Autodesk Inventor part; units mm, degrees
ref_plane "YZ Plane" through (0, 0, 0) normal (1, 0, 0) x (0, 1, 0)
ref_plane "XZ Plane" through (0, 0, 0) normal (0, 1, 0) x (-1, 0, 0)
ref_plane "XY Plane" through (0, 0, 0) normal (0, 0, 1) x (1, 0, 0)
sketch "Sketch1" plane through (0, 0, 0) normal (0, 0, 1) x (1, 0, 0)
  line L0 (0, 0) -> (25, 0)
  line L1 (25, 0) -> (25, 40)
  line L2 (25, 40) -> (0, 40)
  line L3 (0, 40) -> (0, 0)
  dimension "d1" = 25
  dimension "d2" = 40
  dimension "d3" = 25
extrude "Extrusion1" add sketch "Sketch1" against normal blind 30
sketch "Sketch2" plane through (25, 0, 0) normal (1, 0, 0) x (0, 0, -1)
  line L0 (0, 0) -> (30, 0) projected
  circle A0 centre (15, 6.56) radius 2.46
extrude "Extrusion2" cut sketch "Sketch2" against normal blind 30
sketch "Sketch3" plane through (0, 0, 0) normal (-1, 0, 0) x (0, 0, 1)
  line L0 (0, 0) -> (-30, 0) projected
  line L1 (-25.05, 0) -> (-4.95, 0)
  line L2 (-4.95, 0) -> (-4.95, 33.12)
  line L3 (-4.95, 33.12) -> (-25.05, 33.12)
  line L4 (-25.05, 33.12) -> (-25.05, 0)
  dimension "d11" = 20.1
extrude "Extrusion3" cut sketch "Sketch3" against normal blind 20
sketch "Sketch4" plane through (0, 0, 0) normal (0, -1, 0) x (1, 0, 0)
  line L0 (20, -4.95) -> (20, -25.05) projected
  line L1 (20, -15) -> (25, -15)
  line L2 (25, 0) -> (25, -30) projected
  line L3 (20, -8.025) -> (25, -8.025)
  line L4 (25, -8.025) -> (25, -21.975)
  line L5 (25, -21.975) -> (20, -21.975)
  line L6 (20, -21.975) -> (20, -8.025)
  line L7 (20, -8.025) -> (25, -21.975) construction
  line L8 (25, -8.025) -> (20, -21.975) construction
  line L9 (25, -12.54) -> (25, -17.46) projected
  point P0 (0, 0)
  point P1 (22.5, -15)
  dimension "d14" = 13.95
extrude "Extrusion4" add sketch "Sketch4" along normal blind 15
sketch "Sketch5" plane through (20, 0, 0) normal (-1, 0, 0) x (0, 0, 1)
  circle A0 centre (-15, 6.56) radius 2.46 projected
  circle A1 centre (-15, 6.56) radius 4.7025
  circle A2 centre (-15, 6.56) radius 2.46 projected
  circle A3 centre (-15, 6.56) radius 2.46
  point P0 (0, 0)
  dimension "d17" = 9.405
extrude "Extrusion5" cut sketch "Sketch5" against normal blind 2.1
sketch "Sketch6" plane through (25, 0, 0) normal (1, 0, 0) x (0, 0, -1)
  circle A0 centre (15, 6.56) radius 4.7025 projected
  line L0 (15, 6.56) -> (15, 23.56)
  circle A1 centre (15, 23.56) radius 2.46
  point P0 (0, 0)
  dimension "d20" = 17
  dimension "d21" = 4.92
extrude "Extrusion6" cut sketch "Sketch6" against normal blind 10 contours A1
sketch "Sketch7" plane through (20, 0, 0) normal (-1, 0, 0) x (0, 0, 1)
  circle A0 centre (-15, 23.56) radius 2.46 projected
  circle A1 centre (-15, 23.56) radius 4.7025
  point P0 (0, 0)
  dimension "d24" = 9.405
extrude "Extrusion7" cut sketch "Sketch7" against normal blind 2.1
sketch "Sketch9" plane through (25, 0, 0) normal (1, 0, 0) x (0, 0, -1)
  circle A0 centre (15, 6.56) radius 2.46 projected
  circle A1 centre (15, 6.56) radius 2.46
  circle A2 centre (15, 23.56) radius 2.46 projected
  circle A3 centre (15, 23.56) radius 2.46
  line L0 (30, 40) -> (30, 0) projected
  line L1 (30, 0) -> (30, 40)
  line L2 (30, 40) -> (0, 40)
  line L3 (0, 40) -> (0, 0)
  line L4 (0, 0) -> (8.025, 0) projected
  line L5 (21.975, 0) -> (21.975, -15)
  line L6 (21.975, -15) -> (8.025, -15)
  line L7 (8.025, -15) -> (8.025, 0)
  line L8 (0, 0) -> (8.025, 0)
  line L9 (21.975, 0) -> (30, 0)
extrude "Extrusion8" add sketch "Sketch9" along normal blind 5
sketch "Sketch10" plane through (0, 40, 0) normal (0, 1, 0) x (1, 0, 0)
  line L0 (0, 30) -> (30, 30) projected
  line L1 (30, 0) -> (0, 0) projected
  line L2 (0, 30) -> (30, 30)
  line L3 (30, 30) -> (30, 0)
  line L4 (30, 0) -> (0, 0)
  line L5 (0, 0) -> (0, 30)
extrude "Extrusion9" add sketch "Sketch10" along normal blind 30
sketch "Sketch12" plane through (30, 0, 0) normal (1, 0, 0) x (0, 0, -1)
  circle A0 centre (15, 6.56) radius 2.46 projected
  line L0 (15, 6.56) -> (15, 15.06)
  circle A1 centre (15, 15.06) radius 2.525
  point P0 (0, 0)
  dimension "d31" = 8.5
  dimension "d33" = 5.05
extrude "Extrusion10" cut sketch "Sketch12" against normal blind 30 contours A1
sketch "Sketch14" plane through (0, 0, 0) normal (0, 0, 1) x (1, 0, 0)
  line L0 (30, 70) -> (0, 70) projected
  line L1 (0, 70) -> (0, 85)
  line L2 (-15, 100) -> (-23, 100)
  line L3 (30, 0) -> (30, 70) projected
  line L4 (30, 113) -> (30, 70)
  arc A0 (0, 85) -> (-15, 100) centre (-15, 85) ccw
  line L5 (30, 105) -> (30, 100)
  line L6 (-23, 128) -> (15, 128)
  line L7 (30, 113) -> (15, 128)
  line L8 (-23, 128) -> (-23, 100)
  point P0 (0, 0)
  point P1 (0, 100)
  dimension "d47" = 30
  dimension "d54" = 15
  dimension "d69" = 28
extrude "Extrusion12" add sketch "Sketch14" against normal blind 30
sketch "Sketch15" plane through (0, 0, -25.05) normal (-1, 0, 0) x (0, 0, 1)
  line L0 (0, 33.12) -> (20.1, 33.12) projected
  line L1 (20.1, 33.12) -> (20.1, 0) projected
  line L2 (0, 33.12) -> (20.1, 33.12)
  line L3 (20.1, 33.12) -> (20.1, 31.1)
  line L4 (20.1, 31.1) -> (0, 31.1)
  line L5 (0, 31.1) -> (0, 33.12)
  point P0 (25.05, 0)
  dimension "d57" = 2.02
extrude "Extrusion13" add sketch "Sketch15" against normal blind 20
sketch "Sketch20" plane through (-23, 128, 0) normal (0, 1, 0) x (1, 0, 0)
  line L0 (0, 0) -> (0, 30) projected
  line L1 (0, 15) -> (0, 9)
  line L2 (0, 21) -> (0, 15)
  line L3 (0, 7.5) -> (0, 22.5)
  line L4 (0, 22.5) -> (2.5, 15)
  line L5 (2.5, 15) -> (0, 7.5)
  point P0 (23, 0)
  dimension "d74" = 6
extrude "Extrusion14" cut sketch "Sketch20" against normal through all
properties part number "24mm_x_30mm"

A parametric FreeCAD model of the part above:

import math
import FreeCAD as App
import Part
import Sketcher
from FreeCAD import Vector

doc = App.newDocument("Part")
params = doc.addObject("Spreadsheet::Sheet", "Params")
for row, (alias, value) in enumerate([
    ("sketch1_width", "25 mm"),
    ("sketch1_height", "40 mm"),
    ("pad1_length", "30 mm"),
    ("sketch2_diameter", "4.92 mm"),
    ("pocket1_length", "30 mm"),
    ("sketch3_height", "20.1 mm"),
    ("sketch3_width", "33.12 mm"),
    ("pocket2_length", "20 mm"),
    ("sketch4_height", "13.95 mm"),
    ("sketch4_width", "5 mm"),
    ("pad2_length", "15 mm"),
    ("sketch5_diameter", "4.92 mm"),
    ("pocket3_length", "2.1 mm"),
    ("sketch6_diameter", "4.92 mm"),
    ("pocket4_length", "10 mm"),
    ("sketch7_diameter", "4.92 mm"),
    ("pocket5_length", "2.1 mm"),
    ("sketch8_diameter", "4.92 mm"),
    ("sketch8_width", "40 mm"),
    ("sketch8_width2", "15 mm"),
    ("sketch8_height", "30 mm"),
    ("sketch8_height2", "13.95 mm"),
    ("pad3_length", "5 mm"),
    ("sketch9_width", "30 mm"),
    ("pad4_length", "30 mm"),
    ("sketch10_diameter", "5.05 mm"),
    ("pocket6_length", "30 mm"),
    ("sketch11_radius", "15 mm"),
    ("sketch11_width", "30 mm"),
    ("sketch11_height", "28 mm"),
    ("sketch11_height2", "15 mm"),
    ("sketch11_width2", "38 mm"),
    ("pad5_length", "30 mm"),
    ("sketch12_width", "2.02 mm"),
    ("sketch12_height", "20.1 mm"),
    ("pad6_length", "20 mm"),
    ("sketch13_height", "15 mm"),
], start=1):
    params.set(f"A{row}", alias)
    params.set(f"B{row}", "=" + value)
    params.setAlias(f"B{row}", alias)

body = doc.addObject("PartDesign::Body", "Body")

# Sketch on XY plane
sketch1 = body.newObject("Sketcher::SketchObject", "Sketch")
sketch1.AttachmentSupport = (doc.getObject("XY_Plane"), [""])
sketch1.MapMode = "FlatFace"
sketch1.addGeometry(Part.LineSegment(Vector(0, 40, 0), Vector(0, 0, 0)), False)
sketch1.addGeometry(Part.LineSegment(Vector(0, 0, 0), Vector(25, 0, 0)), False)
sketch1.addGeometry(Part.LineSegment(Vector(25, 0, 0), Vector(25, 40, 0)), False)
sketch1.addGeometry(Part.LineSegment(Vector(25, 40, 0), Vector(0, 40, 0)), False)
sketch1.addConstraint(Sketcher.Constraint("Coincident", 0, 2, 1, 1))
sketch1.addConstraint(Sketcher.Constraint("Coincident", 1, 2, 2, 1))
sketch1.addConstraint(Sketcher.Constraint("Coincident", 2, 2, 3, 1))
sketch1.addConstraint(Sketcher.Constraint("Coincident", 3, 2, 0, 1))
sketch1.addConstraint(Sketcher.Constraint("Vertical", 0))
sketch1.addConstraint(Sketcher.Constraint("Horizontal", 1))
sketch1.addConstraint(Sketcher.Constraint("Vertical", 2))
sketch1.addConstraint(Sketcher.Constraint("Horizontal", 3))
sketch1.addConstraint(Sketcher.Constraint("Coincident", 0, 2, -1, 1))
sketch1.addConstraint(Sketcher.Constraint("DistanceX", 1, 1, 1, 2, 25.0))
sketch1.addConstraint(Sketcher.Constraint("DistanceY", 0, 2, 0, 1, 40.0))
sketch1.setExpression("Constraints[9]", "Params.sketch1_width")
sketch1.setExpression("Constraints[10]", "Params.sketch1_height")
pad1 = body.newObject("PartDesign::Pad", "Pad")
pad1.Profile = sketch1
pad1.setExpression("Length", "Params.pad1_length")
pad1.Reversed = True

# Sketch on YZ plane
sketch2 = body.newObject("Sketcher::SketchObject", "Sketch001")
sketch2.AttachmentSupport = (doc.getObject("YZ_Plane"), [""])
sketch2.MapMode = "FlatFace"
sketch2.AttachmentOffset = App.Placement(Vector(0, 0, 25), App.Rotation())
sketch2.addGeometry(Part.Circle(Vector(6.56, -15, 0), Vector(0, 0, 1), 2.46), False)
sketch2.addConstraint(Sketcher.Constraint("Diameter", 0, 4.92))
sketch2.addConstraint(Sketcher.Constraint("DistanceY", 0, 3, -1, 1, 15.0))
sketch2.addConstraint(Sketcher.Constraint("DistanceX", -1, 1, 0, 3, 6.56))
sketch2.setExpression("Constraints[0]", "Params.sketch2_diameter")
pocket1 = body.newObject("PartDesign::Pocket", "Pocket")
pocket1.Profile = sketch2
pocket1.setExpression("Length", "Params.pocket1_length")

# Sketch on YZ plane
sketch3 = body.newObject("Sketcher::SketchObject", "Sketch002")
sketch3.AttachmentSupport = (doc.getObject("YZ_Plane"), [""])
sketch3.MapMode = "FlatFace"
sketch3.addGeometry(Part.LineSegment(Vector(0, -25.05, 0), Vector(0, -4.95, 0)), False)
sketch3.addGeometry(Part.LineSegment(Vector(0, -4.95, 0), Vector(33.12, -4.95, 0)), False)
sketch3.addGeometry(Part.LineSegment(Vector(33.12, -4.95, 0), Vector(33.12, -25.05, 0)), False)
sketch3.addGeometry(Part.LineSegment(Vector(33.12, -25.05, 0), Vector(0, -25.05, 0)), False)
sketch3.addConstraint(Sketcher.Constraint("Coincident", 0, 2, 1, 1))
sketch3.addConstraint(Sketcher.Constraint("Coincident", 1, 2, 2, 1))
sketch3.addConstraint(Sketcher.Constraint("Coincident", 2, 2, 3, 1))
sketch3.addConstraint(Sketcher.Constraint("Coincident", 3, 2, 0, 1))
sketch3.addConstraint(Sketcher.Constraint("Vertical", 0))
sketch3.addConstraint(Sketcher.Constraint("Horizontal", 1))
sketch3.addConstraint(Sketcher.Constraint("Vertical", 2))
sketch3.addConstraint(Sketcher.Constraint("Horizontal", 3))
sketch3.addConstraint(Sketcher.Constraint("PointOnObject", 0, 2, -2))
sketch3.addConstraint(Sketcher.Constraint("DistanceY", 0, 1, 0, 2, 20.1))
sketch3.addConstraint(Sketcher.Constraint("DistanceX", 1, 1, 1, 2, 33.12))
sketch3.addConstraint(Sketcher.Constraint("DistanceY", 0, 2, -1, 1, 4.95))
sketch3.setExpression("Constraints[9]", "Params.sketch3_height")
sketch3.setExpression("Constraints[10]", "Params.sketch3_width")
pocket2 = body.newObject("PartDesign::Pocket", "Pocket001")
pocket2.Profile = sketch3
pocket2.setExpression("Length", "Params.pocket2_length")
pocket2.Reversed = True

# Sketch on XZ plane
sketch4 = body.newObject("Sketcher::SketchObject", "Sketch003")
sketch4.AttachmentSupport = (doc.getObject("XZ_Plane"), [""])
sketch4.MapMode = "FlatFace"
sketch4.addGeometry(Part.LineSegment(Vector(25, -8.025, 0), Vector(20, -8.025, 0)), False)
sketch4.addGeometry(Part.LineSegment(Vector(20, -8.025, 0), Vector(20, -21.975, 0)), False)
sketch4.addGeometry(Part.LineSegment(Vector(20, -21.975, 0), Vector(25, -21.975, 0)), False)
sketch4.addGeometry(Part.LineSegment(Vector(25, -21.975, 0), Vector(25, -8.025, 0)), False)
sketch4.addConstraint(Sketcher.Constraint("Coincident", 0, 2, 1, 1))
sketch4.addConstraint(Sketcher.Constraint("Coincident", 1, 2, 2, 1))
sketch4.addConstraint(Sketcher.Constraint("Coincident", 2, 2, 3, 1))
sketch4.addConstraint(Sketcher.Constraint("Coincident", 3, 2, 0, 1))
sketch4.addConstraint(Sketcher.Constraint("Horizontal", 0))
sketch4.addConstraint(Sketcher.Constraint("Vertical", 1))
sketch4.addConstraint(Sketcher.Constraint("Horizontal", 2))
sketch4.addConstraint(Sketcher.Constraint("Vertical", 3))
sketch4.addConstraint(Sketcher.Constraint("DistanceY", 1, 2, 1, 1, 13.95))
sketch4.addConstraint(Sketcher.Constraint("DistanceX", 0, 2, 0, 1, 5.0))
sketch4.addConstraint(Sketcher.Constraint("DistanceX", -1, 1, 0, 2, 20.0))
sketch4.addConstraint(Sketcher.Constraint("DistanceY", 0, 2, -1, 1, 8.025))
sketch4.setExpression("Constraints[8]", "Params.sketch4_height")
sketch4.setExpression("Constraints[9]", "Params.sketch4_width")
pad2 = body.newObject("PartDesign::Pad", "Pad001")
pad2.Profile = sketch4
pad2.setExpression("Length", "Params.pad2_length")

# Sketch on YZ plane
sketch5 = body.newObject("Sketcher::SketchObject", "Sketch004")
sketch5.AttachmentSupport = (doc.getObject("YZ_Plane"), [""])
sketch5.MapMode = "FlatFace"
sketch5.AttachmentOffset = App.Placement(Vector(0, 0, 20), App.Rotation())
sketch5.addGeometry(Part.Circle(Vector(6.56, -15, 0), Vector(0, 0, 1), 4.7025), False)
sketch5.addGeometry(Part.Circle(Vector(6.56, -15, 0), Vector(0, 0, 1), 2.46), False)
sketch5.addConstraint(Sketcher.Constraint("Coincident", 1, 3, 0, 3))
sketch5.addConstraint(Sketcher.Constraint("Diameter", 0, 9.405))
sketch5.addConstraint(Sketcher.Constraint("Diameter", 1, 4.92))
sketch5.addConstraint(Sketcher.Constraint("DistanceY", 0, 3, -1, 1, 15.0))
sketch5.addConstraint(Sketcher.Constraint("DistanceX", -1, 1, 0, 3, 6.56))
sketch5.setExpression("Constraints[2]", "Params.sketch5_diameter")
pocket3 = body.newObject("PartDesign::Pocket", "Pocket002")
pocket3.Profile = sketch5
pocket3.setExpression("Length", "Params.pocket3_length")
pocket3.Reversed = True

# Sketch on YZ plane
sketch6 = body.newObject("Sketcher::SketchObject", "Sketch005")
sketch6.AttachmentSupport = (doc.getObject("YZ_Plane"), [""])
sketch6.MapMode = "FlatFace"
sketch6.AttachmentOffset = App.Placement(Vector(0, 0, 25), App.Rotation())
sketch6.addGeometry(Part.Circle(Vector(23.56, -15, 0), Vector(0, 0, 1), 2.46), False)
sketch6.addConstraint(Sketcher.Constraint("Diameter", 0, 4.92))
sketch6.addConstraint(Sketcher.Constraint("DistanceY", 0, 3, -1, 1, 15.0))
sketch6.addConstraint(Sketcher.Constraint("DistanceX", -1, 1, 0, 3, 23.56))
sketch6.setExpression("Constraints[0]", "Params.sketch6_diameter")
pocket4 = body.newObject("PartDesign::Pocket", "Pocket003")
pocket4.Profile = sketch6
pocket4.setExpression("Length", "Params.pocket4_length")

# Sketch on YZ plane
sketch7 = body.newObject("Sketcher::SketchObject", "Sketch006")
sketch7.AttachmentSupport = (doc.getObject("YZ_Plane"), [""])
sketch7.MapMode = "FlatFace"
sketch7.AttachmentOffset = App.Placement(Vector(0, 0, 20), App.Rotation())
sketch7.addGeometry(Part.Circle(Vector(23.56, -15, 0), Vector(0, 0, 1), 4.7025), False)
sketch7.addGeometry(Part.Circle(Vector(23.56, -15, 0), Vector(0, 0, 1), 2.46), False)
sketch7.addConstraint(Sketcher.Constraint("Coincident", 1, 3, 0, 3))
sketch7.addConstraint(Sketcher.Constraint("Diameter", 0, 9.405))
sketch7.addConstraint(Sketcher.Constraint("Diameter", 1, 4.92))
sketch7.addConstraint(Sketcher.Constraint("DistanceY", 0, 3, -1, 1, 15.0))
sketch7.addConstraint(Sketcher.Constraint("DistanceX", -1, 1, 0, 3, 23.56))
sketch7.setExpression("Constraints[2]", "Params.sketch7_diameter")
pocket5 = body.newObject("PartDesign::Pocket", "Pocket004")
pocket5.Profile = sketch7
pocket5.setExpression("Length", "Params.pocket5_length")
pocket5.Reversed = True

# Sketch on YZ plane
sketch8 = body.newObject("Sketcher::SketchObject", "Sketch007")
sketch8.AttachmentSupport = (doc.getObject("YZ_Plane"), [""])
sketch8.MapMode = "FlatFace"
sketch8.AttachmentOffset = App.Placement(Vector(0, 0, 25), App.Rotation())
sketch8.addGeometry(Part.LineSegment(Vector(0, -30, 0), Vector(40, -30, 0)), False)
sketch8.addGeometry(Part.LineSegment(Vector(40, -30, 0), Vector(40, 0, 0)), False)
sketch8.addGeometry(Part.LineSegment(Vector(40, 0, 0), Vector(0, 0, 0)), False)
sketch8.addGeometry(Part.LineSegment(Vector(0, 0, 0), Vector(0, -8.025, 0)), False)
sketch8.addGeometry(Part.LineSegment(Vector(0, -8.025, 0), Vector(-15, -8.025, 0)), False)
sketch8.addGeometry(Part.LineSegment(Vector(-15, -8.025, 0), Vector(-15, -21.975, 0)), False)
sketch8.addGeometry(Part.LineSegment(Vector(-15, -21.975, 0), Vector(0, -21.975, 0)), False)
sketch8.addGeometry(Part.LineSegment(Vector(0, -21.975, 0), Vector(0, -30, 0)), False)
sketch8.addGeometry(Part.Circle(Vector(6.56, -15, 0), Vector(0, 0, 1), 2.46), False)
sketch8.addGeometry(Part.Circle(Vector(23.56, -15, 0), Vector(0, 0, 1), 2.46), False)
sketch8.addConstraint(Sketcher.Constraint("Coincident", 0, 2, 1, 1))
sketch8.addConstraint(Sketcher.Constraint("Coincident", 1, 2, 2, 1))
sketch8.addConstraint(Sketcher.Constraint("Coincident", 2, 2, 3, 1))
sketch8.addConstraint(Sketcher.Constraint("Coincident", 3, 2, 4, 1))
sketch8.addConstraint(Sketcher.Constraint("Coincident", 4, 2, 5, 1))
sketch8.addConstraint(Sketcher.Constraint("Coincident", 5, 2, 6, 1))
sketch8.addConstraint(Sketcher.Constraint("Coincident", 6, 2, 7, 1))
sketch8.addConstraint(Sketcher.Constraint("Coincident", 7, 2, 0, 1))
sketch8.addConstraint(Sketcher.Constraint("Horizontal", 0))
sketch8.addConstraint(Sketcher.Constraint("Vertical", 1))
sketch8.addConstraint(Sketcher.Constraint("Horizontal", 2))
sketch8.addConstraint(Sketcher.Constraint("Vertical", 3))
sketch8.addConstraint(Sketcher.Constraint("Horizontal", 4))
sketch8.addConstraint(Sketcher.Constraint("Vertical", 5))
sketch8.addConstraint(Sketcher.Constraint("Horizontal", 6))
sketch8.addConstraint(Sketcher.Constraint("Vertical", 7))
sketch8.addConstraint(Sketcher.Constraint("Coincident", 2, 2, -1, 1))
sketch8.addConstraint(Sketcher.Constraint("Equal", 8, 9))
sketch8.addConstraint(Sketcher.Constraint("PointOnObject", 6, 2, -2))
sketch8.addConstraint(Sketcher.Constraint("Horizontal", 8, 3, 9, 3))
sketch8.addConstraint(Sketcher.Constraint("Equal", 3, 7))
sketch8.addConstraint(Sketcher.Constraint("Diameter", 8, 4.92))
sketch8.addConstraint(Sketcher.Constraint("DistanceX", 0, 1, 0, 2, 40.0))
sketch8.addConstraint(Sketcher.Constraint("DistanceX", 4, 2, 4, 1, 15.0))
sketch8.addConstraint(Sketcher.Constraint("DistanceY", 1, 1, 1, 2, 30.0))
sketch8.addConstraint(Sketcher.Constraint("DistanceY", 8, 3, -1, 1, 15.0))
sketch8.addConstraint(Sketcher.Constraint("DistanceX", 8, 3, 9, 3, 17.0))
sketch8.addConstraint(Sketcher.Constraint("DistanceY", 5, 2, 5, 1, 13.95))
sketch8.addConstraint(Sketcher.Constraint("DistanceX", -1, 1, 8, 3, 6.56))
sketch8.setExpression("Constraints[21]", "Params.sketch8_diameter")
sketch8.setExpression("Constraints[22]", "Params.sketch8_width")
sketch8.setExpression("Constraints[23]", "Params.sketch8_width2")
sketch8.setExpression("Constraints[24]", "Params.sketch8_height")
sketch8.setExpression("Constraints[27]", "Params.sketch8_height2")
pad3 = body.newObject("PartDesign::Pad", "Pad002")
pad3.Profile = sketch8
pad3.setExpression("Length", "Params.pad3_length")

# Sketch on XZ plane
sketch9 = body.newObject("Sketcher::SketchObject", "Sketch008")
sketch9.AttachmentSupport = (doc.getObject("XZ_Plane"), [""])
sketch9.MapMode = "FlatFace"
sketch9.AttachmentOffset = App.Placement(Vector(0, 0, -40), App.Rotation())
sketch9.addGeometry(Part.LineSegment(Vector(30, -30, 0), Vector(0, -30, 0)), False)
sketch9.addGeometry(Part.LineSegment(Vector(0, -30, 0), Vector(0, 0, 0)), False)
sketch9.addGeometry(Part.LineSegment(Vector(0, 0, 0), Vector(30, 0, 0)), False)
sketch9.addGeometry(Part.LineSegment(Vector(30, 0, 0), Vector(30, -30, 0)), False)
sketch9.addConstraint(Sketcher.Constraint("Coincident", 0, 2, 1, 1))
sketch9.addConstraint(Sketcher.Constraint("Coincident", 1, 2, 2, 1))
sketch9.addConstraint(Sketcher.Constraint("Coincident", 2, 2, 3, 1))
sketch9.addConstraint(Sketcher.Constraint("Coincident", 3, 2, 0, 1))
sketch9.addConstraint(Sketcher.Constraint("Horizontal", 0))
sketch9.addConstraint(Sketcher.Constraint("Vertical", 1))
sketch9.addConstraint(Sketcher.Constraint("Horizontal", 2))
sketch9.addConstraint(Sketcher.Constraint("Vertical", 3))
sketch9.addConstraint(Sketcher.Constraint("Coincident", 1, 2, -1, 1))
sketch9.addConstraint(Sketcher.Constraint("Equal", 2, 1))
sketch9.addConstraint(Sketcher.Constraint("DistanceX", 0, 2, 0, 1, 30.0))
sketch9.setExpression("Constraints[10]", "Params.sketch9_width")
pad4 = body.newObject("PartDesign::Pad", "Pad003")
pad4.Profile = sketch9
pad4.setExpression("Length", "Params.pad4_length")
pad4.Reversed = True

# Sketch on YZ plane
sketch10 = body.newObject("Sketcher::SketchObject", "Sketch009")
sketch10.AttachmentSupport = (doc.getObject("YZ_Plane"), [""])
sketch10.MapMode = "FlatFace"
sketch10.AttachmentOffset = App.Placement(Vector(0, 0, 30), App.Rotation())
sketch10.addGeometry(Part.Circle(Vector(15.06, -15, 0), Vector(0, 0, 1), 2.525), False)
sketch10.addConstraint(Sketcher.Constraint("Diameter", 0, 5.05))
sketch10.addConstraint(Sketcher.Constraint("DistanceY", 0, 3, -1, 1, 15.0))
sketch10.addConstraint(Sketcher.Constraint("DistanceX", -1, 1, 0, 3, 15.06))
sketch10.setExpression("Constraints[0]", "Params.sketch10_diameter")
pocket6 = body.newObject("PartDesign::Pocket", "Pocket005")
pocket6.Profile = sketch10
pocket6.setExpression("Length", "Params.pocket6_length")

# Sketch on XY plane
sketch11 = body.newObject("Sketcher::SketchObject", "Sketch010")
sketch11.AttachmentSupport = (doc.getObject("XY_Plane"), [""])
sketch11.MapMode = "FlatFace"
sketch11.addGeometry(Part.LineSegment(Vector(0, 70, 0), Vector(30, 70, 0)), False)
sketch11.addGeometry(Part.LineSegment(Vector(30, 70, 0), Vector(30, 113, 0)), False)
sketch11.addGeometry(Part.LineSegment(Vector(30, 113, 0), Vector(15, 128, 0)), False)
sketch11.addGeometry(Part.LineSegment(Vector(15, 128, 0), Vector(-23, 128, 0)), False)
sketch11.addGeometry(Part.LineSegment(Vector(-23, 128, 0), Vector(-23, 100, 0)), False)
sketch11.addGeometry(Part.LineSegment(Vector(-23, 100, 0), Vector(-15, 100, 0)), False)
sketch11.addGeometry(Part.ArcOfCircle(Part.Circle(Vector(-15, 85, 0), Vector(0, 0, 1), 15), math.radians(0), math.radians(90)), False)
sketch11.addGeometry(Part.LineSegment(Vector(0, 85, 0), Vector(0, 70, 0)), False)
sketch11.addConstraint(Sketcher.Constraint("Coincident", 0, 2, 1, 1))
sketch11.addConstraint(Sketcher.Constraint("Coincident", 1, 2, 2, 1))
sketch11.addConstraint(Sketcher.Constraint("Coincident", 2, 2, 3, 1))
sketch11.addConstraint(Sketcher.Constraint("Coincident", 3, 2, 4, 1))
sketch11.addConstraint(Sketcher.Constraint("Coincident", 4, 2, 5, 1))
sketch11.addConstraint(Sketcher.Constraint("Tangent", 5, 2, 6, 2))
sketch11.addConstraint(Sketcher.Constraint("Tangent", 6, 1, 7, 1))
sketch11.addConstraint(Sketcher.Constraint("Coincident", 7, 2, 0, 1))
sketch11.addConstraint(Sketcher.Constraint("Horizontal", 0))
sketch11.addConstraint(Sketcher.Constraint("Vertical", 1))
sketch11.addConstraint(Sketcher.Constraint("Horizontal", 3))
sketch11.addConstraint(Sketcher.Constraint("Vertical", 4))
sketch11.addConstraint(Sketcher.Constraint("Horizontal", 5))
sketch11.addConstraint(Sketcher.Constraint("Vertical", 7))
sketch11.addConstraint(Sketcher.Constraint("PointOnObject", 6, 1, -2))
sketch11.addConstraint(Sketcher.Constraint("Radius", 6, 15.0))
sketch11.addConstraint(Sketcher.Constraint("DistanceX", 0, 1, 0, 2, 30.0))
sketch11.addConstraint(Sketcher.Constraint("DistanceY", 4, 2, 4, 1, 28.0))
sketch11.addConstraint(Sketcher.Constraint("DistanceY", 7, 2, 7, 1, 15.0))
sketch11.addConstraint(Sketcher.Constraint("DistanceX", -1, 1, 2, 2, 15.0))
sketch11.addConstraint(Sketcher.Constraint("DistanceY", 6, 3, 1, 2, 28.0))
sketch11.addConstraint(Sketcher.Constraint("DistanceX", 3, 2, 3, 1, 38.0))
sketch11.addConstraint(Sketcher.Constraint("DistanceY", -1, 1, 6, 3, 85.0))
sketch11.setExpression("Constraints[15]", "Params.sketch11_radius")
sketch11.setExpression("Constraints[16]", "Params.sketch11_width")
sketch11.setExpression("Constraints[17]", "Params.sketch11_height")
sketch11.setExpression("Constraints[18]", "Params.sketch11_height2")
sketch11.setExpression("Constraints[21]", "Params.sketch11_width2")
pad5 = body.newObject("PartDesign::Pad", "Pad004")
pad5.Profile = sketch11
pad5.setExpression("Length", "Params.pad5_length")
pad5.Reversed = True

# Sketch on YZ plane
sketch12 = body.newObject("Sketcher::SketchObject", "Sketch011")
sketch12.AttachmentSupport = (doc.getObject("YZ_Plane"), [""])
sketch12.MapMode = "FlatFace"
sketch12.addGeometry(Part.LineSegment(Vector(33.12, -4.95, 0), Vector(33.12, -25.05, 0)), False)
sketch12.addGeometry(Part.LineSegment(Vector(33.12, -25.05, 0), Vector(31.1, -25.05, 0)), False)
sketch12.addGeometry(Part.LineSegment(Vector(31.1, -25.05, 0), Vector(31.1, -4.95, 0)), False)
sketch12.addGeometry(Part.LineSegment(Vector(31.1, -4.95, 0), Vector(33.12, -4.95, 0)), False)
sketch12.addConstraint(Sketcher.Constraint("Coincident", 0, 2, 1, 1))
sketch12.addConstraint(Sketcher.Constraint("Coincident", 1, 2, 2, 1))
sketch12.addConstraint(Sketcher.Constraint("Coincident", 2, 2, 3, 1))
sketch12.addConstraint(Sketcher.Constraint("Coincident", 3, 2, 0, 1))
sketch12.addConstraint(Sketcher.Constraint("Vertical", 0))
sketch12.addConstraint(Sketcher.Constraint("Horizontal", 1))
sketch12.addConstraint(Sketcher.Constraint("Vertical", 2))
sketch12.addConstraint(Sketcher.Constraint("Horizontal", 3))
sketch12.addConstraint(Sketcher.Constraint("DistanceX", 1, 2, 1, 1, 2.02))
sketch12.addConstraint(Sketcher.Constraint("DistanceY", 0, 2, 0, 1, 20.1))
sketch12.addConstraint(Sketcher.Constraint("DistanceX", -1, 1, 1, 2, 31.1))
sketch12.addConstraint(Sketcher.Constraint("DistanceY", 0, 2, -1, 1, 25.05))
sketch12.setExpression("Constraints[8]", "Params.sketch12_width")
sketch12.setExpression("Constraints[9]", "Params.sketch12_height")
pad6 = body.newObject("PartDesign::Pad", "Pad005")
pad6.Profile = sketch12
pad6.setExpression("Length", "Params.pad6_length")

# Sketch on XZ plane
sketch13 = body.newObject("Sketcher::SketchObject", "Sketch012")
sketch13.AttachmentSupport = (doc.getObject("XZ_Plane"), [""])
sketch13.MapMode = "FlatFace"
sketch13.AttachmentOffset = App.Placement(Vector(0, 0, -128), App.Rotation())
sketch13.addGeometry(Part.LineSegment(Vector(-23, -22.5, 0), Vector(-23, -7.5, 0)), False)
sketch13.addGeometry(Part.LineSegment(Vector(-23, -7.5, 0), Vector(-20.5, -15, 0)), False)
sketch13.addGeometry(Part.LineSegment(Vector(-20.5, -15, 0), Vector(-23, -22.5, 0)), False)
sketch13.addConstraint(Sketcher.Constraint("Coincident", 0, 2, 1, 1))
sketch13.addConstraint(Sketcher.Constraint("Coincident", 1, 2, 2, 1))
sketch13.addConstraint(Sketcher.Constraint("Coincident", 2, 2, 0, 1))
sketch13.addConstraint(Sketcher.Constraint("Vertical", 0))
sketch13.addConstraint(Sketcher.Constraint("Equal", 1, 2))
sketch13.addConstraint(Sketcher.Constraint("DistanceY", 0, 1, 0, 2, 15.0))
sketch13.addConstraint(Sketcher.Constraint("DistanceX", 0, 2, -1, 1, 23.0))
sketch13.addConstraint(Sketcher.Constraint("DistanceY", 1, 2, -1, 1, 15.0))
sketch13.addConstraint(Sketcher.Constraint("DistanceX", 1, 2, -1, 1, 20.5))
sketch13.setExpression("Constraints[5]", "Params.sketch13_height")
pocket7 = body.newObject("PartDesign::Pocket", "Pocket006")
pocket7.Profile = sketch13
pocket7.Type = "ThroughAll"
pocket7.Reversed = True

doc.recompute()
